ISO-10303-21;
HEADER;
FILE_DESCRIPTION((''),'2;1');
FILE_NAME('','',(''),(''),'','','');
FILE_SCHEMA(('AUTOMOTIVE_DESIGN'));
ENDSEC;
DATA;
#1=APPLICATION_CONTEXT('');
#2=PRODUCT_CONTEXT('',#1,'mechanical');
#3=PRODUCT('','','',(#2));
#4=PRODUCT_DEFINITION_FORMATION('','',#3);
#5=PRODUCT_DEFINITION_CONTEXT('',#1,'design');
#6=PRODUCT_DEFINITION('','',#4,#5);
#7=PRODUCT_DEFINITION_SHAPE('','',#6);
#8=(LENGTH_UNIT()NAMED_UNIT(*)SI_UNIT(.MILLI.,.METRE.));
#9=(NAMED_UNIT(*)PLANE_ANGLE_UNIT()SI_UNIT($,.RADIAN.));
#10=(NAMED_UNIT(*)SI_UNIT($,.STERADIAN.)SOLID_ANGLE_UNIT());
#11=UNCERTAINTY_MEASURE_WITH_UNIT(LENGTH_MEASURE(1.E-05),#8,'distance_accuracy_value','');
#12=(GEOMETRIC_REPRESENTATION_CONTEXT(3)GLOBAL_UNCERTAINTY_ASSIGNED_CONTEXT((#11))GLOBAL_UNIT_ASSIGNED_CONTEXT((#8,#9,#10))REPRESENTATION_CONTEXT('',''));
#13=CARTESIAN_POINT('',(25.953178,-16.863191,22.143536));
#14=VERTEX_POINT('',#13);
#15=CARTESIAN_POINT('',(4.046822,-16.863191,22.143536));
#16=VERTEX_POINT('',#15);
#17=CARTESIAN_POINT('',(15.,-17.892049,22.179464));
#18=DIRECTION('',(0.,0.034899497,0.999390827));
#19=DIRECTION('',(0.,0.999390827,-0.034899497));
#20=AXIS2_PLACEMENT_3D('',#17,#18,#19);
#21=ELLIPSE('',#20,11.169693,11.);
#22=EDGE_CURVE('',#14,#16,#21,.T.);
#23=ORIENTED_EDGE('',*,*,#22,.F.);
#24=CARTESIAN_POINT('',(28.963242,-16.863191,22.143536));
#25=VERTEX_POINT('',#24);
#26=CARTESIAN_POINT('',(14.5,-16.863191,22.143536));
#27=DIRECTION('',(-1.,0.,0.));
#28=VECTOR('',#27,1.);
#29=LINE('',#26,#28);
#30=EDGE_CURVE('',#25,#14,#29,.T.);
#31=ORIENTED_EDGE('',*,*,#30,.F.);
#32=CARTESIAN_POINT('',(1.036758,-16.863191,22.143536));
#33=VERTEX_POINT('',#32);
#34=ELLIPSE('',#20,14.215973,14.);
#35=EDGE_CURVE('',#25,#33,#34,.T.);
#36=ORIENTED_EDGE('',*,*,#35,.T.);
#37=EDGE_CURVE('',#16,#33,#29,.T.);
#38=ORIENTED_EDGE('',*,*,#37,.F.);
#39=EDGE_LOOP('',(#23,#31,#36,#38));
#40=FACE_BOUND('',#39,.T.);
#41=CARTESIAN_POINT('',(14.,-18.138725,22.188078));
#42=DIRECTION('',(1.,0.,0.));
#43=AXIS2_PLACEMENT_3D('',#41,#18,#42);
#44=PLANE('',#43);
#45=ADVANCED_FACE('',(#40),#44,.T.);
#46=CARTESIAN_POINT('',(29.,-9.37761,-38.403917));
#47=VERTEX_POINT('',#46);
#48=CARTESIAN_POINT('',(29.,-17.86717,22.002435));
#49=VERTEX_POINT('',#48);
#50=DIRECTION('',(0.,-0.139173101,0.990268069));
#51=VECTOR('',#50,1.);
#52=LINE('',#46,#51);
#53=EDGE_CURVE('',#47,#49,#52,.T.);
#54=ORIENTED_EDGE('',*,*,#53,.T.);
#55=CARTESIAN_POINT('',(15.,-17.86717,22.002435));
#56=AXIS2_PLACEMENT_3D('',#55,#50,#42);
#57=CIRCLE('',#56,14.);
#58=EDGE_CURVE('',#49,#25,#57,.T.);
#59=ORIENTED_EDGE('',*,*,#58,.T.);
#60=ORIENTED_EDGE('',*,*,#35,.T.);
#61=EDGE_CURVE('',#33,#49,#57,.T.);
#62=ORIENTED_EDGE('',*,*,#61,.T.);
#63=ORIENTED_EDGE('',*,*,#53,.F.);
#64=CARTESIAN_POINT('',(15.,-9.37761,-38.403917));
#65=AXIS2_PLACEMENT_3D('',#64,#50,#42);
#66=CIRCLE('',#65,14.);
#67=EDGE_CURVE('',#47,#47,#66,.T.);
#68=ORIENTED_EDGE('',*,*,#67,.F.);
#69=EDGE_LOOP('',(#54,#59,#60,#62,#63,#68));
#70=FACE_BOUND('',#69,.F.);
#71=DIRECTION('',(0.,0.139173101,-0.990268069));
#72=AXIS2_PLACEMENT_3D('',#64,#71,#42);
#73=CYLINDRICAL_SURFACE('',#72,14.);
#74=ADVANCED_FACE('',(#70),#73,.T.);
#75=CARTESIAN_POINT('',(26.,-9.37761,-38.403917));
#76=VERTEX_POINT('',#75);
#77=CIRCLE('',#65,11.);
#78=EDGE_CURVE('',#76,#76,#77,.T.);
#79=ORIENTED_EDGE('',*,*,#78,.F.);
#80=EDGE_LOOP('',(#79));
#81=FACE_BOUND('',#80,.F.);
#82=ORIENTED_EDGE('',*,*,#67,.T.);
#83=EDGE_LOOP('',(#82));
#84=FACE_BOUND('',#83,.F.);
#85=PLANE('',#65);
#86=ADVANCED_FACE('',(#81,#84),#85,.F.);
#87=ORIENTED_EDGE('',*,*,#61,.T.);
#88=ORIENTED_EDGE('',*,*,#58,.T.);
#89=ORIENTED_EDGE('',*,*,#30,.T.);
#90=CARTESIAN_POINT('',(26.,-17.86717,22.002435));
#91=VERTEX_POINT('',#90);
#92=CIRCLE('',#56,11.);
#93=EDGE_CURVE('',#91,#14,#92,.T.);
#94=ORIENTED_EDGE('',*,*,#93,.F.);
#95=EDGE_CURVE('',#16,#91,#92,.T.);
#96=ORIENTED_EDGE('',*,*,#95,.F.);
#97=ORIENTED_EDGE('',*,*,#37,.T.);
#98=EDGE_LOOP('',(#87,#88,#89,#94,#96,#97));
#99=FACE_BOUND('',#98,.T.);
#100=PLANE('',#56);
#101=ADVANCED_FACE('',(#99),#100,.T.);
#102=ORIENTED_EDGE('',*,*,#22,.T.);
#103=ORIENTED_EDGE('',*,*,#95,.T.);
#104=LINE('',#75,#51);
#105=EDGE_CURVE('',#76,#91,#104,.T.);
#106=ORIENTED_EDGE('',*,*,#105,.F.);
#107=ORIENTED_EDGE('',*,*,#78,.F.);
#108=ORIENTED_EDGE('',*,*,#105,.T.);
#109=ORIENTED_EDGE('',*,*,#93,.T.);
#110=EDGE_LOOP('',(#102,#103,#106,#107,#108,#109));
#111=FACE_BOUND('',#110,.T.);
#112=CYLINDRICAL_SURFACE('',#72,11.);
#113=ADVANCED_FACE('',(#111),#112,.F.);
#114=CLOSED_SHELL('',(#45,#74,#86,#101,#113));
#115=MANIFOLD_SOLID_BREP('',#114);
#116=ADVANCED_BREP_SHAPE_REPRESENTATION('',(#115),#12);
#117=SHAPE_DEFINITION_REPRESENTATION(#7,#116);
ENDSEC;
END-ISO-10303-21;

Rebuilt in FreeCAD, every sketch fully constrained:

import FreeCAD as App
import Part
import Sketcher


def add_polygon(sketch, points):
    """Adds a closed chain of lines whose ends are joined by coincident constraints."""
    first, n = sketch.GeometryCount, len(points)
    for a, b in zip(points, points[1:] + points[:1]):
        sketch.addGeometry(Part.LineSegment(App.Vector(*a, 0), App.Vector(*b, 0)), False)
    for i in range(n):
        sketch.addConstraint(Sketcher.Constraint("Coincident", first + i, 2, first + (i + 1) % n, 1))

doc = App.newDocument("Part")
params = doc.addObject("Spreadsheet::Sheet", "Params")
for row, (alias, value) in enumerate([
    ("sketch1_diameter", "22 mm"),
    ("pad1_length", "61 mm"),
    ("sketch2_width", "32 mm"),
    ("pad2_length", "8 mm"),
    ("sketch3_diameter", "28 mm"),
    ("pad3_length", "61 mm"),
], start=1):
    params.set(f"A{row}", alias)
    params.set(f"B{row}", "=" + value)
    params.setAlias(f"B{row}", alias)

body = doc.addObject("PartDesign::Body", "Body")

# Sketch on XY plane
sketch1 = doc.addObject("Sketcher::SketchObject", "Sketch")
body.addObject(sketch1)
sketch1.AttachmentSupport = (doc.XY_Plane, [""])
sketch1.MapMode = "FlatFace"
sketch1.AttachmentOffset = App.Placement(App.Vector(0, 0, -39), App.Rotation())
sketch1.addGeometry(Part.Circle(App.Vector(15, -20, 0), App.Vector(0, 0, 1), 11), False)
sketch1.addConstraint([
    Sketcher.Constraint("Diameter", 0, 22.0),
    Sketcher.Constraint("DistanceX", -1, 1, 0, 3, 15.0),
    Sketcher.Constraint("DistanceY", 0, 3, -1, 1, 20.0),
])
sketch1.setExpression("Constraints[0]", "Params.sketch1_diameter")
pad1 = doc.addObject("PartDesign::Pad", "Pad")
body.addObject(pad1)
pad1.Profile = sketch1
pad1.setExpression("Length", "Params.pad1_length")
body2 = doc.addObject("PartDesign::Body", "Body001")

# Sketch on XY plane
sketch2 = doc.addObject("Sketcher::SketchObject", "Sketch001")
body2.addObject(sketch2)
sketch2.AttachmentSupport = (doc.getObject("XY_Plane001"), [""])
sketch2.MapMode = "FlatFace"
add_polygon(sketch2, [(0, 32), (0, 0), (32, 0), (32, 32)])  # lines 0-3
sketch2.addConstraint([
    Sketcher.Constraint("Vertical", 0),
    Sketcher.Constraint("Horizontal", 1),
    Sketcher.Constraint("Vertical", 2),
    Sketcher.Constraint("Horizontal", 3),
    Sketcher.Constraint("Coincident", 0, 2, -1, 1),
    Sketcher.Constraint("Equal", 3, 0),
    Sketcher.Constraint("DistanceX", 1, 1, 1, 2, 32.0),
])
sketch2.setExpression("Constraints[10]", "Params.sketch2_width")
pad2 = doc.addObject("PartDesign::Pad", "Pad001")
body2.addObject(pad2)
pad2.Profile = sketch2
pad2.setExpression("Length", "Params.pad2_length")
body3 = doc.addObject("PartDesign::Body", "Body002")
doc.recompute()

body2.Placement = App.Placement(App.Vector(-2, -36, 25), App.Rotation(App.Vector(-1, 0, 0), 10))
boolean = doc.addObject("PartDesign::Boolean", "Boolean")
body3.addObject(boolean)
boolean.Type = "Fuse"
boolean.addObjects([body2])
doc.recompute()

boolean2 = doc.addObject("PartDesign::Boolean", "Boolean001")
body3.addObject(boolean2)
boolean2.Type = "Fuse"
boolean2.addObjects([body])
body4 = doc.addObject("PartDesign::Body", "Body003")

# Sketch on XY plane
sketch3 = doc.addObject("Sketcher::SketchObject", "Sketch002")
body4.addObject(sketch3)
sketch3.AttachmentSupport = (doc.getObject("XY_Plane003"), [""])
sketch3.MapMode = "FlatFace"
sketch3.AttachmentOffset = App.Placement(App.Vector(0, 0, -39), App.Rotation())
sketch3.addGeometry(Part.Circle(App.Vector(15, -20, 0), App.Vector(0, 0, 1), 14), False)
sketch3.addConstraint([
    Sketcher.Constraint("Diameter", 0, 28.0),
    Sketcher.Constraint("DistanceX", -1, 1, 0, 3, 15.0),
    Sketcher.Constraint("DistanceY", 0, 3, -1, 1, 20.0),
])
sketch3.setExpression("Constraints[0]", "Params.sketch3_diameter")
pad3 = doc.addObject("PartDesign::Pad", "Pad002")
body4.addObject(pad3)
pad3.Profile = sketch3
pad3.setExpression("Length", "Params.pad3_length")
doc.recompute()

boolean3 = doc.addObject("PartDesign::Boolean", "Boolean002")
body4.addObject(boolean3)
boolean3.Type = "Cut"
boolean3.addObjects([body3])
body5 = doc.addObject("PartDesign::Body", "Body004")
doc.recompute()

body4.Placement = App.Placement(App.Vector(0, 5, 3), App.Rotation(App.Vector(1, 0, 0), 8))
boolean4 = doc.addObject("PartDesign::Boolean", "Boolean003")
body5.addObject(boolean4)
boolean4.Type = "Fuse"
boolean4.addObjects([body4])

doc.recompute()
